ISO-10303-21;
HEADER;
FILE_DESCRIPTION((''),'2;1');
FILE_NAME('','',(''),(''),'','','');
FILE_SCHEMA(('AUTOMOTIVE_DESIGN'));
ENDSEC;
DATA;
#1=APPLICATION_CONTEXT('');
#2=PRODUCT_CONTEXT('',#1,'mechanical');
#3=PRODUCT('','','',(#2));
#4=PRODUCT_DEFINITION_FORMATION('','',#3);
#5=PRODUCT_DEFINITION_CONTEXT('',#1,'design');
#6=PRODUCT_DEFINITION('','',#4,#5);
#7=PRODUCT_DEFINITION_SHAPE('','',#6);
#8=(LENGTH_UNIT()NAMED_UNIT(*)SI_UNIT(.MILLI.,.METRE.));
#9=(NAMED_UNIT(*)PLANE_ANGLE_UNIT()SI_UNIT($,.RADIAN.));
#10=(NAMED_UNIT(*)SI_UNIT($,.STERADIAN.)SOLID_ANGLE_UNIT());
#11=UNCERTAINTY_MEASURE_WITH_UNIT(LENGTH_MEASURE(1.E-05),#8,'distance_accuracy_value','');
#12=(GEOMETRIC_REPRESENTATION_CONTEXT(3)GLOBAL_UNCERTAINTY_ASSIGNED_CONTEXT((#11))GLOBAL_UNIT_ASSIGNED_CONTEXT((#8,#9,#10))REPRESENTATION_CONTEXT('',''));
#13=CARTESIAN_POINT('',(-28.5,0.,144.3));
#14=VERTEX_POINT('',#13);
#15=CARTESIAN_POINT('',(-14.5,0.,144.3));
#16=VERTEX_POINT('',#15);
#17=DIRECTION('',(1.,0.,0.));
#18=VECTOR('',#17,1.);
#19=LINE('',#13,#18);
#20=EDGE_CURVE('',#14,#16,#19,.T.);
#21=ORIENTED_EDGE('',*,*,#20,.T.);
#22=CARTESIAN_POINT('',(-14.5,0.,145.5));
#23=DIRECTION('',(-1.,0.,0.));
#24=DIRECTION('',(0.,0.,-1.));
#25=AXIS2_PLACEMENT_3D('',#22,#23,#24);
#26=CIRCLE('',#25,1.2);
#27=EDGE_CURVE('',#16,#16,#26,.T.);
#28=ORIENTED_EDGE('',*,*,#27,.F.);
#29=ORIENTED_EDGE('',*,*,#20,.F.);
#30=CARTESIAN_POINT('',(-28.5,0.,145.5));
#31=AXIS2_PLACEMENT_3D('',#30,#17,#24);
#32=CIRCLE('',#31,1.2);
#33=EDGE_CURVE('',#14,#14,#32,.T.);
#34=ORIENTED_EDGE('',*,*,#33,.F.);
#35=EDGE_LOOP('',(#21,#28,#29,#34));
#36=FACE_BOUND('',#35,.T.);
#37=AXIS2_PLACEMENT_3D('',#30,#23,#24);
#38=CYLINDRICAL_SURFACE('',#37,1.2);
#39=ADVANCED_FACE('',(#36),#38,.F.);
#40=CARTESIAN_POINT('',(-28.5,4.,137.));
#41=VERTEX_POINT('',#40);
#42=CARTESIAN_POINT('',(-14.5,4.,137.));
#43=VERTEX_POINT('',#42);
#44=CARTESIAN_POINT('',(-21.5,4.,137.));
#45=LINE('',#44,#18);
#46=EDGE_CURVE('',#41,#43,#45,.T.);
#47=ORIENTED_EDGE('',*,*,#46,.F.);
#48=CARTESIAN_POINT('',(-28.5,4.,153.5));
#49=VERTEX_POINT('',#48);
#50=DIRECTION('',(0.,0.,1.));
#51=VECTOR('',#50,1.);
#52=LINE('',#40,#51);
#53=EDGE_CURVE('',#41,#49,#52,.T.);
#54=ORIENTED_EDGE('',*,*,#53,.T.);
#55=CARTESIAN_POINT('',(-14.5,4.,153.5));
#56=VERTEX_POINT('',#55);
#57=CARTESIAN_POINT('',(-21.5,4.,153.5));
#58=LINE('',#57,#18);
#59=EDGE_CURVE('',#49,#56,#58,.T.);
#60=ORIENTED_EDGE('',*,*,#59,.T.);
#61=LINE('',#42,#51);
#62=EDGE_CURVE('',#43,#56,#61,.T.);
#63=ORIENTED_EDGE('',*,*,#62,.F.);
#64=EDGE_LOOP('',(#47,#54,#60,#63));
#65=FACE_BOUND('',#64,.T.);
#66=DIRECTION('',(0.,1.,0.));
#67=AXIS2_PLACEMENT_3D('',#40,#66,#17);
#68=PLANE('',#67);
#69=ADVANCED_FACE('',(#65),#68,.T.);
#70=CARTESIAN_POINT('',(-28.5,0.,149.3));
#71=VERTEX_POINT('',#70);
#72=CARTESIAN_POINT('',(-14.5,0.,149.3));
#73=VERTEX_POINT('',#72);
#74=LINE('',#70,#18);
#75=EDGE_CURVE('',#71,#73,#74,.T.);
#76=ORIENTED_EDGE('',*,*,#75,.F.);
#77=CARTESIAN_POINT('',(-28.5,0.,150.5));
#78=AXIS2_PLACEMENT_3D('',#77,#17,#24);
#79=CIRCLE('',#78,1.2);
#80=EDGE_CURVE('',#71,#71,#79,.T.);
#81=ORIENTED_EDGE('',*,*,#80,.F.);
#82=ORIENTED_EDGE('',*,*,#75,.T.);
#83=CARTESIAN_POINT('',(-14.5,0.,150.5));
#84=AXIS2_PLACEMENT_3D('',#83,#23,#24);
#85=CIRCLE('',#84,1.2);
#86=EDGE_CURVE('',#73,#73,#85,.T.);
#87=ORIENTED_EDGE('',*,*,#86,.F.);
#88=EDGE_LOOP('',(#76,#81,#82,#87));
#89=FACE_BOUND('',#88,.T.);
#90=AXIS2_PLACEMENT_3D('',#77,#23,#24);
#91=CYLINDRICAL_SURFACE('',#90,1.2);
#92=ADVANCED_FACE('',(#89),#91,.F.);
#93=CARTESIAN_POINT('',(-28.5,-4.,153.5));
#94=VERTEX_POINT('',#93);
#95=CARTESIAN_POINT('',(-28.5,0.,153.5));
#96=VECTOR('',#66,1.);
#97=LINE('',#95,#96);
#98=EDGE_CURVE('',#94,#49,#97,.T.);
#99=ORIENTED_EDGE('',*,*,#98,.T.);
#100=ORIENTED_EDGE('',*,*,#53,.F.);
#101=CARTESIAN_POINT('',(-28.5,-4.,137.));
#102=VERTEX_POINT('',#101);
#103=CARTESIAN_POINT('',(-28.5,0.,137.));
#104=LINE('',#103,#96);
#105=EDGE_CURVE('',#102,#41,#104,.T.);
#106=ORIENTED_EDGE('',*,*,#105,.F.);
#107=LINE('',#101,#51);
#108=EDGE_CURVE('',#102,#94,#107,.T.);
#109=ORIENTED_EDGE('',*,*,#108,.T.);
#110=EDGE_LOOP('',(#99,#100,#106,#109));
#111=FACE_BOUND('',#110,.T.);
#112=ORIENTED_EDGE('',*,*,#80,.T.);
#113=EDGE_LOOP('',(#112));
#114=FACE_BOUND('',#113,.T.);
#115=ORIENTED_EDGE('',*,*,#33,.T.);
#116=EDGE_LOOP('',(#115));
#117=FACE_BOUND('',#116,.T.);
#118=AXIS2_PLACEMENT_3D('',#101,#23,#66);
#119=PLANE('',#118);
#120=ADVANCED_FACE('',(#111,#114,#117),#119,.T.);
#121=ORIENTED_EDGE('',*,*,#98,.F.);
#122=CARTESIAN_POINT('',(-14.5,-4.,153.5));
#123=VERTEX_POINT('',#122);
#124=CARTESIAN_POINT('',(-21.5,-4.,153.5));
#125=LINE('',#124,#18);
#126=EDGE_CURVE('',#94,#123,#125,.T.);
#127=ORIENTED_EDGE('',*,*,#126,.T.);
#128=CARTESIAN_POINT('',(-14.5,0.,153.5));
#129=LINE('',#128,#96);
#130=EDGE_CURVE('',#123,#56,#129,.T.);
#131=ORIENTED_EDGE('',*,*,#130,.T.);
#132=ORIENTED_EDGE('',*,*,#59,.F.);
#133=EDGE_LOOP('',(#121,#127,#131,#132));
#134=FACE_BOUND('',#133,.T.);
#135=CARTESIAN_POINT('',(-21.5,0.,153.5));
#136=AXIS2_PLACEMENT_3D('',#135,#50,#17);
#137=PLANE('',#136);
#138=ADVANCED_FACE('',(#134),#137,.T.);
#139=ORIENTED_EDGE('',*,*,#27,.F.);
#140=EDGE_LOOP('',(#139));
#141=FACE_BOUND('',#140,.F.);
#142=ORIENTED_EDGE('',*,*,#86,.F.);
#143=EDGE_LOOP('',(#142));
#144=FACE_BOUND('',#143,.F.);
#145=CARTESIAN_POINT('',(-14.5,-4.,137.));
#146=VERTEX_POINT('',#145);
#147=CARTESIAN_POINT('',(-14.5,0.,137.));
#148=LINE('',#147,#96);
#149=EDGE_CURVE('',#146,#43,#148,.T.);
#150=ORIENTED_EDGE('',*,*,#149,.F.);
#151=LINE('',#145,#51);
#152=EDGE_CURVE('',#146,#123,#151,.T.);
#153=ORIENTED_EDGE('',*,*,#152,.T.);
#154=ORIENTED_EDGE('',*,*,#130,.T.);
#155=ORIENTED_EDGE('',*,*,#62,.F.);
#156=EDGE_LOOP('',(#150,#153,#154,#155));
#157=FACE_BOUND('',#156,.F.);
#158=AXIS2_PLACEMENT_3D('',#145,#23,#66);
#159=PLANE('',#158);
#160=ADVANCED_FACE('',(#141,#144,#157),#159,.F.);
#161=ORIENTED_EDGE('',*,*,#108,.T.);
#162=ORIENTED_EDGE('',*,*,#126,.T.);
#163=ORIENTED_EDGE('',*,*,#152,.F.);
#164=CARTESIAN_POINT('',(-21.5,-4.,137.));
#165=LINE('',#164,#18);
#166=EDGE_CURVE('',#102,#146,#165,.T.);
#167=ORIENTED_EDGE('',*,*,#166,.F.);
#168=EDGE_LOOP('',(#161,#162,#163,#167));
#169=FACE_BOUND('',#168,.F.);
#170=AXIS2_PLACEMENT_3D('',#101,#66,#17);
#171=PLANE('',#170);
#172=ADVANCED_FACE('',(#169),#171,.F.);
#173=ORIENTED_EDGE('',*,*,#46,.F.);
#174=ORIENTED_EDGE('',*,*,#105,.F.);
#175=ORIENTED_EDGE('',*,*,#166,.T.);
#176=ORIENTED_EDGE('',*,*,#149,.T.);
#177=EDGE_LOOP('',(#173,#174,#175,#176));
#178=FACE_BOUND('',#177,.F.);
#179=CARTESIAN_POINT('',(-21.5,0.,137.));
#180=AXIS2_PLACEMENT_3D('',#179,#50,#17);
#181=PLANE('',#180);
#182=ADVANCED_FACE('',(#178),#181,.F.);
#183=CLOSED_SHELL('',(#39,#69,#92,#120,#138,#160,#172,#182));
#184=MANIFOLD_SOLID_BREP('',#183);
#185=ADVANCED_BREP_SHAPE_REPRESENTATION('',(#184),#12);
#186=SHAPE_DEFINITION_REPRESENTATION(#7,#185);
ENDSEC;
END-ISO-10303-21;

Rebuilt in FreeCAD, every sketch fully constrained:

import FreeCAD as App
import Part
import Sketcher
Q = App.Units.Quantity


def add_polygon(sketch, points):
    """Adds a closed chain of lines whose ends are joined by coincident constraints."""
    first, n = sketch.GeometryCount, len(points)
    for a, b in zip(points, points[1:] + points[:1]):
        sketch.addGeometry(Part.LineSegment(App.Vector(*a, 0), App.Vector(*b, 0)), False)
    for i in range(n):
        sketch.addConstraint(Sketcher.Constraint("Coincident", first + i, 2, first + (i + 1) % n, 1))

doc = App.newDocument("Part")
body = doc.addObject("PartDesign::Body", "Body")

sketch1 = body.newObject("Sketcher::SketchObject", "Sketch")
sketch1.AttachmentSupport = (doc.getObject("YZ_Plane"), [""])
sketch1.MapMode = "FlatFace"
sketch1.AttachmentOffset = App.Placement(App.Vector(0, 0, -28.5), App.Rotation())
sketch1.addGeometry(Part.Circle(App.Vector(0, 150.5, 0), App.Vector(0, 0, 1), 1.2), False)
sketch1.addConstraint([
    Sketcher.Constraint("PointOnObject", 0, 3, -2),
    Sketcher.Constraint("Diameter", 0, Q("2.4 mm")),
    Sketcher.Constraint("DistanceY", -1, 1, 0, 3, Q("150.5 mm")),
])
pad1 = body.newObject("PartDesign::Pad", "Pad")
pad1.Profile = sketch1
pad1.Length = 18.5
body2 = doc.addObject("PartDesign::Body", "Body001")
body2.AllowCompound = True

sketch2 = body2.newObject("Sketcher::SketchObject", "Sketch001")
sketch2.AttachmentSupport = (doc.getObject("YZ_Plane001"), [""])
sketch2.MapMode = "FlatFace"
sketch2.AttachmentOffset = App.Placement(App.Vector(0, 0, -28.5), App.Rotation())
sketch2.addGeometry(Part.Circle(App.Vector(0, 145.5, 0), App.Vector(0, 0, 1), 1.2), False)
sketch2.addConstraint([
    Sketcher.Constraint("PointOnObject", 0, 3, -2),
    Sketcher.Constraint("Diameter", 0, Q("2.4 mm")),
    Sketcher.Constraint("DistanceY", -1, 1, 0, 3, Q("145.5 mm")),
])
pad2 = body2.newObject("PartDesign::Pad", "Pad001")
pad2.Profile = sketch2
pad2.Length = 18.5
doc.recompute()

boolean = body2.newObject("PartDesign::Boolean", "Boolean")
boolean.Type = "Fuse"
boolean.addObjects([body])
body3 = doc.addObject("PartDesign::Body", "Body002")

sketch3 = body3.newObject("Sketcher::SketchObject", "Sketch002")
sketch3.AttachmentSupport = (doc.getObject("XY_Plane002"), [""])
sketch3.MapMode = "FlatFace"
sketch3.AttachmentOffset = App.Placement(App.Vector(0, 0, 137), App.Rotation())
add_polygon(sketch3, [(-28, 4), (-28, -4), (-14, -4), (-14, 4)])
sketch3.addConstraint([
    Sketcher.Constraint("Vertical", 0),
    Sketcher.Constraint("Horizontal", 1),
    Sketcher.Constraint("Vertical", 2),
    Sketcher.Constraint("Horizontal", 3),
    Sketcher.Constraint("DistanceX", 1, 1, 1, 2, Q("14 mm")),
    Sketcher.Constraint("DistanceY", 0, 2, 0, 1, Q("8 mm")),
    Sketcher.Constraint("DistanceY", 0, 2, -1, 1, Q("4 mm")),
    Sketcher.Constraint("DistanceX", 0, 2, -1, 1, Q("28.5 mm")),
])
pad3 = body3.newObject("PartDesign::Pad", "Pad002")
pad3.Profile = sketch3
pad3.Length = 16.5
doc.recompute()

boolean2 = body3.newObject("PartDesign::Boolean", "Boolean001")
boolean2.Type = "Cut"
boolean2.addObjects([body2])

doc.recompute()
